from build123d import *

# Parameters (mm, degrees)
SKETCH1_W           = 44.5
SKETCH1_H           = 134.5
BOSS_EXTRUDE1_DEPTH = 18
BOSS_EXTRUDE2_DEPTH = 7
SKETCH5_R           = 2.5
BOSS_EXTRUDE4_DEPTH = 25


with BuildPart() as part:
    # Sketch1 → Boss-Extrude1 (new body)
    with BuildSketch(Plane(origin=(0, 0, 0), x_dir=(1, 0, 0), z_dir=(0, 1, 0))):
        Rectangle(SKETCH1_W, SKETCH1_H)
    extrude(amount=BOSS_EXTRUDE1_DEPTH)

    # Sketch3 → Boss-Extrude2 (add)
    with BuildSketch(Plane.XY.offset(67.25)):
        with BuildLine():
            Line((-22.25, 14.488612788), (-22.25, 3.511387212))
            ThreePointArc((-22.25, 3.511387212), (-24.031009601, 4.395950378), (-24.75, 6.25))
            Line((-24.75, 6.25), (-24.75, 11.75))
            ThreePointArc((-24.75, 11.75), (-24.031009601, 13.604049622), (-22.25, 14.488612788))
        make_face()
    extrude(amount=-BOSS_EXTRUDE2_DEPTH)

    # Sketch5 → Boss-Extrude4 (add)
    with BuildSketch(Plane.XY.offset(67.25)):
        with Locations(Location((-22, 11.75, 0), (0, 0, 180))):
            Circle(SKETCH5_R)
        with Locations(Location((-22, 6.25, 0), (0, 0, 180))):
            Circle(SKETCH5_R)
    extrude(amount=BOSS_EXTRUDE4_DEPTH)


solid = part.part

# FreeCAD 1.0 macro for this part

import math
import FreeCAD as App
import Part
import Sketcher

doc = App.newDocument("Part")
body = doc.addObject("PartDesign::Body", "Body")

# Sketch on XZ plane
sketch1 = body.newObject("Sketcher::SketchObject", "Sketch")
sketch1.AttachmentSupport = (doc.getObject("XZ_Plane"), [""])
sketch1.MapMode = "FlatFace"
sketch1.addGeometry([
    Part.LineSegment(App.Vector(-22, -67, 0), App.Vector(-22, 67, 0)),
    Part.LineSegment(App.Vector(-22, 67, 0), App.Vector(22, 67, 0)),
    Part.LineSegment(App.Vector(22, 67, 0), App.Vector(22, -67, 0)),
    Part.LineSegment(App.Vector(22, -67, 0), App.Vector(-22, -67, 0)),
], False)
sketch1.addConstraint([
    Sketcher.Constraint("Coincident", 0, 2, 1, 1),
    Sketcher.Constraint("Coincident", 1, 2, 2, 1),
    Sketcher.Constraint("Coincident", 2, 2, 3, 1),
    Sketcher.Constraint("Coincident", 3, 2, 0, 1),
    Sketcher.Constraint("Vertical", 0),
    Sketcher.Constraint("Horizontal", 1),
    Sketcher.Constraint("Vertical", 2),
    Sketcher.Constraint("Horizontal", 3),
    Sketcher.Constraint("Symmetric", 0, 2, 2, 2, -1, 1),
    Sketcher.Constraint("DistanceX", 1, 1, 1, 2, 44.5),
    Sketcher.Constraint("DistanceY", 0, 1, 0, 2, 134.5),
])
pad1 = body.newObject("PartDesign::Pad", "Pad")
pad1.Profile = sketch1
pad1.Length = 18
pad1.Reversed = True

# Sketch on XY plane
sketch2 = body.newObject("Sketcher::SketchObject", "Sketch001")
sketch2.AttachmentSupport = (doc.getObject("XY_Plane"), [""])
sketch2.MapMode = "FlatFace"
sketch2.AttachmentOffset = App.Placement(App.Vector(0, 0, 67.25), App.Rotation())
sketch2.addGeometry([
    Part.LineSegment(App.Vector(-22.2, 3.5, 0), App.Vector(-22.2, 14.5, 0)),
    Part.ArcOfCircle(Part.Circle(App.Vector(-22, 11.8, 0), App.Vector(0, 0, 1), 2.8), math.radians(95), math.radians(180)),
    Part.LineSegment(App.Vector(-24.8, 11.8, 0), App.Vector(-24.8, 6.2, 0)),
    Part.ArcOfCircle(Part.Circle(App.Vector(-22, 6.2, 0), App.Vector(0, 0, 1), 2.8), math.radians(180), math.radians(265)),
], False)
sketch2.addConstraint([
    Sketcher.Constraint("Coincident", 0, 2, 1, 1),
    Sketcher.Constraint("Tangent", 1, 2, 2, 1),
    Sketcher.Constraint("Tangent", 2, 2, 3, 1),
    Sketcher.Constraint("Coincident", 3, 2, 0, 1),
    Sketcher.Constraint("Vertical", 0),
    Sketcher.Constraint("Vertical", 2),
    Sketcher.Constraint("Equal", 1, 3),
    Sketcher.Constraint("Radius", 1, 2.75),
    Sketcher.Constraint("DistanceY", 2, 2, 2, 1, 5.5),
    Sketcher.Constraint("DistanceX", 1, 3, -1, 1, 22.0),
    Sketcher.Constraint("DistanceX", 1, 2, 0, 2, 2.5),
    Sketcher.Constraint("DistanceY", -1, 1, 1, 3, 11.75),
])
pad2 = body.newObject("PartDesign::Pad", "Pad001")
pad2.Profile = sketch2
pad2.Length = 7
pad2.Reversed = True

# Sketch on XY plane
sketch3 = body.newObject("Sketcher::SketchObject", "Sketch002")
sketch3.AttachmentSupport = (doc.getObject("XY_Plane"), [""])
sketch3.MapMode = "FlatFace"
sketch3.AttachmentOffset = App.Placement(App.Vector(0, 0, 67.25), App.Rotation())
sketch3.addGeometry([
    Part.Circle(App.Vector(-22, 11.8, 0), App.Vector(0, 0, 1), 2.5),
    Part.Circle(App.Vector(-22, 6.2, 0), App.Vector(0, 0, 1), 2.5),
], False)
sketch3.addConstraint([
    Sketcher.Constraint("Equal", 0, 1),
    Sketcher.Constraint("Vertical", 0, 3, 1, 3),
    Sketcher.Constraint("Diameter", 0, 5.0),
    Sketcher.Constraint("DistanceX", 0, 3, -1, 1, 22.0),
    Sketcher.Constraint("DistanceY", 1, 3, 0, 3, 5.5),
    Sketcher.Constraint("DistanceY", -1, 1, 0, 3, 11.75),
])
pad3 = body.newObject("PartDesign::Pad", "Pad002")
pad3.Profile = sketch3
pad3.Length = 25

doc.recompute()
